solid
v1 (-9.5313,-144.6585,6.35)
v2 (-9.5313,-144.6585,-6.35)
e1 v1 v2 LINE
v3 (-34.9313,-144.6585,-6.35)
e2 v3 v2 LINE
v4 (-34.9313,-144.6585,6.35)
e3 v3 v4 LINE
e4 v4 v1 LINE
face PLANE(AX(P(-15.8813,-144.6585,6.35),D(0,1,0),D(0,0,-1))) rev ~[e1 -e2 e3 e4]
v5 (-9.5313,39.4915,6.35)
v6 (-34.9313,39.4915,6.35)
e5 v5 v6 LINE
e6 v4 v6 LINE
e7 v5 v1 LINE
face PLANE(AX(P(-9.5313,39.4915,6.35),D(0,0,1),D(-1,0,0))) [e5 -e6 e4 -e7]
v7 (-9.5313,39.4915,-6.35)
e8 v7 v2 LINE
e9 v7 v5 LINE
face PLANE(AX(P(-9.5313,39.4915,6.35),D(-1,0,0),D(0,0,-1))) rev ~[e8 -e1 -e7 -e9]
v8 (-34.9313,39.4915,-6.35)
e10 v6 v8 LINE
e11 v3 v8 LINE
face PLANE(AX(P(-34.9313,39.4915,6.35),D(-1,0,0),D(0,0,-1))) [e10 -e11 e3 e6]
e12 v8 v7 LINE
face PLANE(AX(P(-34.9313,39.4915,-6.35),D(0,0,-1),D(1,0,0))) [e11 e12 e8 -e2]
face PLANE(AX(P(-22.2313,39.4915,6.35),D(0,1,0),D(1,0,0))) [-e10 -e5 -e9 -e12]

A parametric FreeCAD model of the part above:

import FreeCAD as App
import Part
import Sketcher
from FreeCAD import Vector
Q = App.Units.Quantity


def add_polygon(sketch, points):
    """Adds a closed chain of lines whose ends are joined by coincident constraints."""
    first, n = sketch.GeometryCount, len(points)
    for a, b in zip(points, points[1:] + points[:1]):
        sketch.addGeometry(Part.LineSegment(App.Vector(*a, 0), App.Vector(*b, 0)), False)
    for i in range(n):
        sketch.addConstraint(Sketcher.Constraint("Coincident", first + i, 2, first + (i + 1) % n, 1))

doc = App.newDocument("Part")
body = doc.addObject("PartDesign::Body", "Body")

# Sketch on XY plane
sketch1 = body.newObject("Sketcher::SketchObject", "Sketch")
sketch1.AttachmentSupport = (doc.getObject("XY_Plane"), [""])
sketch1.MapMode = "FlatFace"
add_polygon(sketch1, [(-28.6, 39.5), (-28.6, 26.8), (-41.3, 26.8), (-41.3, 14.1), (-28.6, 14.1), (-28.6, -132), (-41.3, -132), (-41.3, -144.7), (-28.6, -144.7), (-28.6, -154.2), (116.2, -154.2), (116.2, -144.7), (128.9, -144.7), (128.9, -132), (116.2, -132), (116.2, 14.1), (128.9, 14.1), (128.9, 26.8), (116.2, 26.8), (116.2, 39.5)])  # lines 0-19
sketch1.addGeometry(Part.Circle(Vector(-34.9, -138.3, 0), Vector(0, 0, 1), 2), False)  # 20
sketch1.addGeometry(Part.Circle(Vector(122.5, -138.3, 0), Vector(0, 0, 1), 2), False)  # 21
add_polygon(sketch1, [(-22.2, -151), (-22.2, 26.8), (-22.2, 33.1), (15.9, 33.1), (15.9, 26.8), (22.2, 26.8), (22.2, 33.1), (65.4, 33.1), (65.4, 26.8), (71.7, 26.8), (71.7, 33.1), (109.8, 33.1), (109.8, -151), (71.7, -151), (71.7, -144.7), (65.4, -144.7), (65.4, -151), (22.2, -151), (22.2, -144.7), (15.9, -144.7), (15.9, -151)])  # lines 22-42
sketch1.addGeometry(Part.Circle(Vector(-34.9, 20.4, 0), Vector(0, 0, 1), 2), False)  # 43
sketch1.addGeometry(Part.Circle(Vector(122.5, 20.4, 0), Vector(0, 0, 1), 2), False)  # 44
sketch1.addConstraint([
    Sketcher.Constraint("Vertical", 0),
    Sketcher.Constraint("Horizontal", 1),
    Sketcher.Constraint("Vertical", 2),
    Sketcher.Constraint("Horizontal", 3),
    Sketcher.Constraint("Vertical", 4),
    Sketcher.Constraint("Horizontal", 5),
    Sketcher.Constraint("Vertical", 6),
    Sketcher.Constraint("Horizontal", 7),
    Sketcher.Constraint("Vertical", 8),
    Sketcher.Constraint("Horizontal", 9),
    Sketcher.Constraint("Vertical", 10),
    Sketcher.Constraint("Horizontal", 11),
    Sketcher.Constraint("Vertical", 12),
    Sketcher.Constraint("Horizontal", 13),
    Sketcher.Constraint("Vertical", 14),
    Sketcher.Constraint("Horizontal", 15),
    Sketcher.Constraint("Vertical", 16),
    Sketcher.Constraint("Horizontal", 17),
    Sketcher.Constraint("Vertical", 18),
    Sketcher.Constraint("Horizontal", 19),
    Sketcher.Constraint("Vertical", 22),
    Sketcher.Constraint("Vertical", 23),
    Sketcher.Constraint("Horizontal", 24),
    Sketcher.Constraint("Vertical", 25),
    Sketcher.Constraint("Horizontal", 26),
    Sketcher.Constraint("Vertical", 27),
    Sketcher.Constraint("Horizontal", 28),
    Sketcher.Constraint("Vertical", 29),
    Sketcher.Constraint("Horizontal", 30),
    Sketcher.Constraint("Vertical", 31),
    Sketcher.Constraint("Horizontal", 32),
    Sketcher.Constraint("Vertical", 33),
    Sketcher.Constraint("Horizontal", 34),
    Sketcher.Constraint("Vertical", 35),
    Sketcher.Constraint("Horizontal", 36),
    Sketcher.Constraint("Vertical", 37),
    Sketcher.Constraint("Horizontal", 38),
    Sketcher.Constraint("Vertical", 39),
    Sketcher.Constraint("Horizontal", 40),
    Sketcher.Constraint("Vertical", 41),
    Sketcher.Constraint("Horizontal", 42),
    Sketcher.Constraint("Equal", 20, 21),
    Sketcher.Constraint("Equal", 21, 43),
    Sketcher.Constraint("Equal", 43, 44),
    Sketcher.Constraint("Horizontal", 20, 3, 21, 3),
    Sketcher.Constraint("Horizontal", 43, 3, 44, 3),
    Sketcher.Constraint("Horizontal", 7, 2, 10, 2),
    Sketcher.Constraint("Horizontal", 5, 2, 12, 2),
    Sketcher.Constraint("Horizontal", 3, 2, 14, 2),
    Sketcher.Constraint("Horizontal", 1, 2, 16, 2),
    Sketcher.Constraint("Horizontal", 17, 2, 22, 2),
    Sketcher.Constraint("Horizontal", 22, 2, 25, 2),
    Sketcher.Constraint("Horizontal", 24, 2, 27, 2),
    Sketcher.Constraint("Horizontal", 26, 2, 29, 2),
    Sketcher.Constraint("Horizontal", 28, 2, 31, 2),
    Sketcher.Constraint("Horizontal", 11, 2, 35, 2),
    Sketcher.Constraint("Horizontal", 34, 2, 37, 2),
    Sketcher.Constraint("Horizontal", 36, 2, 39, 2),
    Sketcher.Constraint("Horizontal", 38, 2, 41, 2),
    Sketcher.Constraint("Vertical", 20, 3, 43, 3),
    Sketcher.Constraint("Vertical", 21, 3, 44, 3),
    Sketcher.Constraint("Vertical", 0, 2, 3, 2),
    Sketcher.Constraint("Vertical", 2, 2, 5, 2),
    Sketcher.Constraint("Vertical", 4, 2, 7, 2),
    Sketcher.Constraint("Vertical", 10, 2, 13, 2),
    Sketcher.Constraint("Vertical", 12, 2, 15, 2),
    Sketcher.Constraint("Vertical", 14, 2, 17, 2),
    Sketcher.Constraint("Vertical", 31, 2, 34, 2),
    Sketcher.Constraint("Vertical", 29, 2, 36, 2),
    Sketcher.Constraint("Vertical", 27, 2, 38, 2),
    Sketcher.Constraint("Vertical", 25, 2, 40, 2),
    Sketcher.Constraint("Equal", 7, 11),
    Sketcher.Constraint("Equal", 26, 30),
    Sketcher.Constraint("Equal", 24, 32),
    Sketcher.Constraint("Equal", 17, 0),
    Sketcher.Constraint("Equal", 0, 2),
    Sketcher.Constraint("Equal", 2, 6),
    Sketcher.Constraint("Equal", 40, 23),
    Sketcher.Constraint("Equal", 31, 35),
    Sketcher.Constraint("Diameter", 20, Q("0.156 in")),
    Sketcher.Constraint("DistanceX", 1, 2, 1, 1, Q("0.5 in")),
    Sketcher.Constraint("DistanceX", 9, 1, 9, 2, Q("5.7 in")),
    Sketcher.Constraint("DistanceX", 24, 1, 24, 2, Q("1.5 in")),
    Sketcher.Constraint("DistanceX", 26, 1, 26, 2, Q("0.25 in")),
    Sketcher.Constraint("DistanceY", 4, 2, 4, 1, Q("5.75 in")),
    Sketcher.Constraint("DistanceX", 43, 3, 22, 2, Q("0.5 in")),
    Sketcher.Constraint("DistanceY", 43, 3, 23, 2, Q("0.5 in")),
    Sketcher.Constraint("DistanceX", 32, 2, 44, 3, Q("0.5 in")),
    Sketcher.Constraint("DistanceY", 33, 2, 21, 3, Q("0.5 in")),
    Sketcher.Constraint("DistanceY", 8, 2, 8, 1, Q("0.375 in")),
    Sketcher.Constraint("DistanceX", 43, 3, 0, 2, Q("0.25 in")),
    Sketcher.Constraint("DistanceX", 9, 2, 21, 3, Q("0.25 in")),
    Sketcher.Constraint("DistanceX", 20, 3, -1, 1, Q("34.9313 mm")),
    Sketcher.Constraint("DistanceY", 20, 3, -1, 1, Q("138.3085 mm")),
])
pad1 = body.newObject("PartDesign::Pad", "Pad")
pad1.Profile = sketch1
pad1.Length = Q("0.25 in")

# Sketch on XZ plane
sketch2 = body.newObject("Sketcher::SketchObject", "Sketch001")
sketch2.AttachmentSupport = (doc.getObject("XZ_Plane"), [""])
sketch2.MapMode = "FlatFace"
sketch2.AttachmentOffset = App.Placement(Vector(0, 0, 154.1835), App.Rotation())
add_polygon(sketch2, [(116, 0), (116, 6), (-29, 6), (-29, 0)])  # lines 0-3
sketch2.addConstraint([
    Sketcher.Constraint("Vertical", 0),
    Sketcher.Constraint("Horizontal", 1),
    Sketcher.Constraint("Vertical", 2),
    Sketcher.Constraint("Horizontal", 3),
    Sketcher.Constraint("PointOnObject", 2, 2, -1),
    Sketcher.Constraint("DistanceX", 1, 2, 1, 1, Q("5.7 in")),
    Sketcher.Constraint("DistanceY", 0, 1, 0, 2, Q("0.25 in")),
    Sketcher.Constraint("DistanceX", -1, 1, 0, 2, Q("116.1987 mm")),
])
pad2 = body.newObject("PartDesign::Pad", "Pad001")
pad2.Profile = sketch2
pad2.Length = Q("0.125 in")

# Sketch on XY plane
sketch3 = body.newObject("Sketcher::SketchObject", "Sketch002")
sketch3.AttachmentSupport = (doc.getObject("XY_Plane"), [""])
sketch3.MapMode = "FlatFace"
sketch3.AttachmentOffset = App.Placement(Vector(0, 0, 0.25 * 25.4), App.Rotation())
add_polygon(sketch3, [(-29, -132), (-29, 14), (-41, 14), (-41, -132)])  # lines 0-3
add_polygon(sketch3, [(116, 14), (116, -132), (129, -132), (129, 14)])  # lines 4-7
sketch3.addConstraint([
    Sketcher.Constraint("Vertical", 0),
    Sketcher.Constraint("Horizontal", 1),
    Sketcher.Constraint("Vertical", 2),
    Sketcher.Constraint("Horizontal", 3),
    Sketcher.Constraint("Vertical", 4),
    Sketcher.Constraint("Horizontal", 5),
    Sketcher.Constraint("Vertical", 6),
    Sketcher.Constraint("Horizontal", 7),
    Sketcher.Constraint("Horizontal", 3, 2, 4, 2),
    Sketcher.Constraint("Horizontal", 1, 2, 6, 2),
    Sketcher.Constraint("Equal", 3, 5),
    Sketcher.Constraint("DistanceX", 1, 2, 1, 1, Q("0.5 in")),
    Sketcher.Constraint("DistanceY", 0, 1, 0, 2, Q("5.75 in")),
    Sketcher.Constraint("DistanceX", 3, 2, 4, 2, Q("5.7 in")),
    Sketcher.Constraint("DistanceX", 0, 2, -1, 1, Q("28.5813 mm")),
    Sketcher.Constraint("DistanceY", -1, 1, 0, 2, Q("14.0915 mm")),
])
pad3 = body.newObject("PartDesign::Pad", "Pad002")
pad3.Profile = sketch3
pad3.Length = Q("0.25 in")
pad3.Reversed = True

# Sketch on XY plane
sketch4 = body.newObject("Sketcher::SketchObject", "Sketch003")
sketch4.AttachmentSupport = (doc.getObject("XY_Plane"), [""])
sketch4.MapMode = "FlatFace"
sketch4.AttachmentOffset = App.Placement(Vector(0, 0, 0.25 * 25.4), App.Rotation())
add_polygon(sketch4, [(-41, -157), (-29, -157), (-29, -151), (-41, -151)])  # lines 0-3
add_polygon(sketch4, [(116, -151), (116, -157), (129, -157), (129, -151)])  # lines 4-7
add_polygon(sketch4, [(110, 20), (110, 27), (-22, 27), (-22, 20)])  # lines 8-11
add_polygon(sketch4, [(110, -145), (110, -138), (-22, -138), (-22, -145)])  # lines 12-15
sketch4.addConstraint([
    Sketcher.Constraint("Horizontal", 0),
    Sketcher.Constraint("Vertical", 1),
    Sketcher.Constraint("Horizontal", 2),
    Sketcher.Constraint("Vertical", 3),
    Sketcher.Constraint("Vertical", 4),
    Sketcher.Constraint("Horizontal", 5),
    Sketcher.Constraint("Vertical", 6),
    Sketcher.Constraint("Horizontal", 7),
    Sketcher.Constraint("Vertical", 8),
    Sketcher.Constraint("Horizontal", 9),
    Sketcher.Constraint("Vertical", 10),
    Sketcher.Constraint("Horizontal", 11),
    Sketcher.Constraint("Vertical", 12),
    Sketcher.Constraint("Horizontal", 13),
    Sketcher.Constraint("Vertical", 14),
    Sketcher.Constraint("Horizontal", 15),
    Sketcher.Constraint("Horizontal", 3, 2, 4, 2),
    Sketcher.Constraint("Horizontal", 2, 2, 6, 2),
    Sketcher.Constraint("Vertical", 11, 2, 12, 2),
    Sketcher.Constraint("Vertical", 10, 2, 13, 2),
    Sketcher.Constraint("Equal", 2, 5),
    Sketcher.Constraint("Equal", 6, 8),
    Sketcher.Constraint("Equal", 10, 12),
    Sketcher.Constraint("DistanceX", 0, 1, 0, 2, Q("0.5 in")),
    Sketcher.Constraint("DistanceX", 9, 2, 9, 1, Q("5.2 in")),
    Sketcher.Constraint("DistanceY", 7, 2, 8, 2, Q("7 in")),
    Sketcher.Constraint("DistanceY", 1, 1, 1, 2, Q("0.25 in")),
    Sketcher.Constraint("DistanceX", 0, 2, 4, 2, Q("5.7 in")),
    Sketcher.Constraint("DistanceY", 7, 2, 12, 2, Q("0.5 in")),
    Sketcher.Constraint("DistanceX", 8, 2, 7, 2, Q("0.25 in")),
    Sketcher.Constraint("DistanceX", 0, 2, -1, 1, Q("28.5813 mm")),
    Sketcher.Constraint("DistanceY", 0, 2, -1, 1, Q("157.3585 mm")),
])
pad4 = body.newObject("PartDesign::Pad", "Pad003")
pad4.Profile = sketch4
pad4.Length = Q("0.25 in")
pad4.Reversed = True

# Sketch on XY plane
sketch5 = body.newObject("Sketcher::SketchObject", "Sketch004")
sketch5.AttachmentSupport = (doc.getObject("XY_Plane"), [""])
sketch5.MapMode = "FlatFace"
sketch5.AttachmentOffset = App.Placement(Vector(0, 0, 0.25 * 25.4), App.Rotation())
add_polygon(sketch5, [(-41, 33), (-29, 33), (-29, 39), (-41, 39)])  # lines 0-3
add_polygon(sketch5, [(129, 39), (116, 39), (116, 33), (129, 33)])  # lines 4-7
sketch5.addConstraint([
    Sketcher.Constraint("Horizontal", 0),
    Sketcher.Constraint("Vertical", 1),
    Sketcher.Constraint("Horizontal", 2),
    Sketcher.Constraint("Vertical", 3),
    Sketcher.Constraint("Horizontal", 4),
    Sketcher.Constraint("Vertical", 5),
    Sketcher.Constraint("Horizontal", 6),
    Sketcher.Constraint("Vertical", 7),
    Sketcher.Constraint("Horizontal", 2, 2, 4, 2),
    Sketcher.Constraint("Horizontal", 3, 2, 5, 2),
    Sketcher.Constraint("Equal", 2, 4),
    Sketcher.Constraint("DistanceX", 0, 1, 0, 2, Q("0.5 in")),
    Sketcher.Constraint("DistanceY", 1, 1, 1, 2, Q("0.25 in")),
    Sketcher.Constraint("DistanceX", 1, 2, 4, 2, Q("5.7 in")),
    Sketcher.Constraint("DistanceX", 0, 2, -1, 1, Q("28.5813 mm")),
    Sketcher.Constraint("DistanceY", -1, 1, 0, 2, Q("33.1415 mm")),
])
pad5 = body.newObject("PartDesign::Pad", "Pad004")
pad5.Profile = sketch5
pad5.Length = Q("0.25 in")
pad5.Reversed = True

# Sketch on XY plane
sketch6 = body.newObject("Sketcher::SketchObject", "Sketch005")
sketch6.AttachmentSupport = (doc.getObject("XY_Plane"), [""])
sketch6.MapMode = "FlatFace"
sketch6.AttachmentOffset = App.Placement(Vector(0, 0, 0.25 * 25.4), App.Rotation())
add_polygon(sketch6, [(59, -151), (78, -151), (78, -145), (59, -145)])  # lines 0-3
add_polygon(sketch6, [(10, -151), (29, -151), (29, -145), (10, -145)])  # lines 4-7
add_polygon(sketch6, [(22, 27), (29, 27), (29, 33), (22, 33)])  # lines 8-11
add_polygon(sketch6, [(59, 27), (65, 27), (65, 33), (59, 33)])  # lines 12-15
add_polygon(sketch6, [(72, 27), (78, 27), (78, 33), (72, 33)])  # lines 16-19
add_polygon(sketch6, [(-35, 33), (-35, 27), (-29, 27), (-29, 33)])  # lines 20-23
add_polygon(sketch6, [(-35, -151), (-29, -151), (-29, -145), (-35, -145)])  # lines 24-27
add_polygon(sketch6, [(116, -151), (123, -151), (123, -145), (116, -145)])  # lines 28-31
add_polygon(sketch6, [(116, 33), (116, 27), (123, 27), (123, 33)])  # lines 32-35
add_polygon(sketch6, [(16, 27), (16, 33), (10, 33), (10, 27)])  # lines 36-39
sketch6.addConstraint([
    Sketcher.Constraint("Horizontal", 0),
    Sketcher.Constraint("Vertical", 1),
    Sketcher.Constraint("Horizontal", 2),
    Sketcher.Constraint("Vertical", 3),
    Sketcher.Constraint("Horizontal", 4),
    Sketcher.Constraint("Vertical", 5),
    Sketcher.Constraint("Horizontal", 6),
    Sketcher.Constraint("Vertical", 7),
    Sketcher.Constraint("Horizontal", 8),
    Sketcher.Constraint("Vertical", 9),
    Sketcher.Constraint("Horizontal", 10),
    Sketcher.Constraint("Vertical", 11),
    Sketcher.Constraint("Horizontal", 12),
    Sketcher.Constraint("Vertical", 13),
    Sketcher.Constraint("Horizontal", 14),
    Sketcher.Constraint("Vertical", 15),
    Sketcher.Constraint("Horizontal", 16),
    Sketcher.Constraint("Vertical", 17),
    Sketcher.Constraint("Horizontal", 18),
    Sketcher.Constraint("Vertical", 19),
    Sketcher.Constraint("Vertical", 20),
    Sketcher.Constraint("Horizontal", 21),
    Sketcher.Constraint("Vertical", 22),
    Sketcher.Constraint("Horizontal", 23),
    Sketcher.Constraint("Horizontal", 24),
    Sketcher.Constraint("Vertical", 25),
    Sketcher.Constraint("Horizontal", 26),
    Sketcher.Constraint("Vertical", 27),
    Sketcher.Constraint("Horizontal", 28),
    Sketcher.Constraint("Vertical", 29),
    Sketcher.Constraint("Horizontal", 30),
    Sketcher.Constraint("Vertical", 31),
    Sketcher.Constraint("Vertical", 32),
    Sketcher.Constraint("Horizontal", 33),
    Sketcher.Constraint("Vertical", 34),
    Sketcher.Constraint("Horizontal", 35),
    Sketcher.Constraint("Vertical", 36),
    Sketcher.Constraint("Horizontal", 37),
    Sketcher.Constraint("Vertical", 38),
    Sketcher.Constraint("Horizontal", 39),
    Sketcher.Constraint("Horizontal", 3, 2, 4, 2),
    Sketcher.Constraint("Horizontal", 2, 2, 5, 2),
    Sketcher.Constraint("Horizontal", 11, 2, 12, 2),
    Sketcher.Constraint("Horizontal", 10, 2, 13, 2),
    Sketcher.Constraint("Horizontal", 15, 2, 16, 2),
    Sketcher.Constraint("Horizontal", 14, 2, 17, 2),
    Sketcher.Constraint("Horizontal", 19, 2, 20, 2),
    Sketcher.Constraint("Horizontal", 18, 2, 22, 2),
    Sketcher.Constraint("Horizontal", 7, 2, 24, 2),
    Sketcher.Constraint("Horizontal", 6, 2, 25, 2),
    Sketcher.Constraint("Horizontal", 27, 2, 28, 2),
    Sketcher.Constraint("Horizontal", 26, 2, 29, 2),
    Sketcher.Constraint("Horizontal", 21, 2, 32, 2),
    Sketcher.Constraint("Horizontal", 23, 2, 34, 2),
    Sketcher.Constraint("Horizontal", 35, 2, 36, 2),
    Sketcher.Constraint("Horizontal", 33, 2, 38, 2),
    Sketcher.Constraint("Vertical", 5, 2, 8, 2),
    Sketcher.Constraint("Vertical", 3, 2, 14, 2),
    Sketcher.Constraint("Vertical", 1, 2, 16, 2),
    Sketcher.Constraint("Vertical", 22, 2, 24, 2),
    Sketcher.Constraint("Vertical", 23, 2, 26, 2),
    Sketcher.Constraint("Vertical", 31, 2, 32, 2),
    Sketcher.Constraint("Vertical", 29, 2, 33, 2),
    Sketcher.Constraint("Vertical", 7, 2, 37, 2),
    Sketcher.Constraint("Equal", 10, 12),
    Sketcher.Constraint("Equal", 14, 16),
    Sketcher.Constraint("Equal", 18, 21),
    Sketcher.Constraint("Equal", 26, 28),
    Sketcher.Constraint("Equal", 35, 1),
    Sketcher.Constraint("Equal", 7, 9),
    Sketcher.Constraint("DistanceX", 8, 1, 8, 2, Q("0.25 in")),
    Sketcher.Constraint("DistanceX", 13, 2, 18, 2, Q("0.25 in")),
    Sketcher.Constraint("DistanceX", 36, 2, 10, 2, Q("0.25 in")),
    Sketcher.Constraint("DistanceY", 4, 2, 8, 2, Q("7 in")),
    Sketcher.Constraint("DistanceX", 21, 2, 11, 2, Q("2 in")),
    Sketcher.Constraint("DistanceX", 12, 2, 32, 2, Q("2 in")),
    Sketcher.Constraint("DistanceX", 4, 2, 3, 2, Q("1.2 in")),
    Sketcher.Constraint("DistanceX", 4, 1, 4, 2, Q("18.4895 mm")),
    Sketcher.Constraint("DistanceX", -1, 1, 0, 2, Q("78.0987 mm")),
    Sketcher.Constraint("DistanceY", 0, 2, -1, 1, Q("151.0085 mm")),
])
pad6 = body.newObject("PartDesign::Pad", "Pad005")
pad6.Profile = sketch6
pad6.Length = Q("0.25 in")
pad6.Reversed = True

# Sketch on XY plane
sketch7 = body.newObject("Sketcher::SketchObject", "Sketch006")
sketch7.AttachmentSupport = (doc.getObject("XY_Plane"), [""])
sketch7.MapMode = "FlatFace"
add_polygon(sketch7, [(129, 116), (129, 39), (-41, 39), (-41, 65), (91, 65), (91, 116)])  # lines 0-5
sketch7.addConstraint([
    Sketcher.Constraint("Vertical", 0),
    Sketcher.Constraint("Horizontal", 1),
    Sketcher.Constraint("Vertical", 2),
    Sketcher.Constraint("Horizontal", 3),
    Sketcher.Constraint("Vertical", 4),
    Sketcher.Constraint("Horizontal", 5),
    Sketcher.Constraint("DistanceY", 0, 2, 0, 1, Q("3 in")),
    Sketcher.Constraint("DistanceY", 2, 1, 2, 2, Q("1 in")),
    Sketcher.Constraint("DistanceX", 5, 1, 5, 2, Q("1.5 in")),
    Sketcher.Constraint("DistanceX", 1, 2, 1, 1, Q("6.7 in")),
    Sketcher.Constraint("DistanceX", -1, 1, 0, 2, Q("128.8987 mm")),
    Sketcher.Constraint("DistanceY", -1, 1, 0, 2, Q("39.4915 mm")),
])
pad7 = body.newObject("PartDesign::Pad", "Pad006")
pad7.Profile = sketch7
pad7.Length = Q("0.25 in")

# Sketch on XY plane
sketch8 = body.newObject("Sketcher::SketchObject", "Sketch007")
sketch8.AttachmentSupport = (doc.getObject("XY_Plane"), [""])
sketch8.MapMode = "FlatFace"
add_polygon(sketch8, [(-172, 65), (-41, 65), (-41, 39), (-210, 39), (-210, 116), (-172, 116)])  # lines 0-5
sketch8.addConstraint([
    Sketcher.Constraint("Horizontal", 0),
    Sketcher.Constraint("Vertical", 1),
    Sketcher.Constraint("Horizontal", 2),
    Sketcher.Constraint("Vertical", 3),
    Sketcher.Constraint("Horizontal", 4),
    Sketcher.Constraint("Vertical", 5),
    Sketcher.Constraint("DistanceY", 1, 2, 1, 1, Q("1 in")),
    Sketcher.Constraint("DistanceX", 4, 1, 4, 2, Q("1.5 in")),
    Sketcher.Constraint("DistanceX", 2, 2, 2, 1, Q("6.65 in")),
    Sketcher.Constraint("DistanceY", 3, 1, 3, 2, Q("3 in")),
    Sketcher.Constraint("DistanceX", 0, 2, -1, 1, Q("41.2813 mm")),
    Sketcher.Constraint("DistanceY", -1, 1, 0, 2, Q("64.8915 mm")),
])
pad8 = body.newObject("PartDesign::Pad", "Pad007")
pad8.Profile = sketch8
pad8.Length = Q("0.25 in")

# Sketch on XY plane
sketch9 = body.newObject("Sketcher::SketchObject", "Sketch008")
sketch9.AttachmentSupport = (doc.getObject("XY_Plane"), [""])
sketch9.MapMode = "FlatFace"
add_polygon(sketch9, [(129, 27), (-41, 27), (-41, 50), (129, 50)])  # lines 0-3
sketch9.addConstraint([
    Sketcher.Constraint("Horizontal", 0),
    Sketcher.Constraint("Vertical", 1),
    Sketcher.Constraint("Horizontal", 2),
    Sketcher.Constraint("Vertical", 3),
    Sketcher.Constraint("DistanceX", 0, 2, 0, 1, Q("6.7 in")),
    Sketcher.Constraint("DistanceY", 1, 1, 1, 2, Q("22.9725 mm")),
    Sketcher.Constraint("DistanceX", 0, 2, -1, 1, Q("41.2813 mm")),
    Sketcher.Constraint("DistanceY", -1, 1, 0, 2, Q("26.7915 mm")),
])
pad9 = body.newObject("PartDesign::Pad", "Pad008")
pad9.Profile = sketch9
pad9.Length = Q("0.25 in")

# Sketch on XY plane
sketch10 = body.newObject("Sketcher::SketchObject", "Sketch009")
sketch10.AttachmentSupport = (doc.getObject("XY_Plane"), [""])
sketch10.MapMode = "FlatFace"
add_polygon(sketch10, [(-210, 39), (-41, 39), (-41, 20), (-210, 20)])  # lines 0-3
sketch10.addConstraint([
    Sketcher.Constraint("Horizontal", 0),
    Sketcher.Constraint("Vertical", 1),
    Sketcher.Constraint("Horizontal", 2),
    Sketcher.Constraint("Vertical", 3),
    Sketcher.Constraint("DistanceX", 0, 1, 0, 2, Q("6.65 in")),
    Sketcher.Constraint("DistanceY", 1, 2, 1, 1, Q("0.75 in")),
    Sketcher.Constraint("DistanceX", 0, 2, -1, 1, Q("41.2813 mm")),
    Sketcher.Constraint("DistanceY", -1, 1, 0, 2, Q("39.4915 mm")),
])
pad10 = body.newObject("PartDesign::Pad", "Pad009")
pad10.Profile = sketch10
pad10.Length = Q("0.25 in")

# Sketch on XY plane
sketch11 = body.newObject("Sketcher::SketchObject", "Sketch010")
sketch11.AttachmentSupport = (doc.getObject("XY_Plane"), [""])
sketch11.MapMode = "FlatFace"
add_polygon(sketch11, [(129, 141), (129, 116), (91, 116), (91, 141)])  # lines 0-3
add_polygon(sketch11, [(-172, 141), (-172, 116), (-210, 116), (-210, 141)])  # lines 4-7
sketch11.addConstraint([
    Sketcher.Constraint("Vertical", 0),
    Sketcher.Constraint("Horizontal", 1),
    Sketcher.Constraint("Vertical", 2),
    Sketcher.Constraint("Horizontal", 3),
    Sketcher.Constraint("Vertical", 4),
    Sketcher.Constraint("Horizontal", 5),
    Sketcher.Constraint("Vertical", 6),
    Sketcher.Constraint("Horizontal", 7),
    Sketcher.Constraint("Horizontal", 1, 2, 4, 2),
    Sketcher.Constraint("Horizontal", 3, 2, 6, 2),
    Sketcher.Constraint("Equal", 3, 5),
    Sketcher.Constraint("DistanceY", 0, 2, 0, 1, Q("1 in")),
    Sketcher.Constraint("DistanceX", 1, 2, 1, 1, Q("1.5 in")),
    Sketcher.Constraint("DistanceX", 4, 2, 1, 2, Q("10.35 in")),
    Sketcher.Constraint("DistanceX", -1, 1, 0, 2, Q("128.8987 mm")),
    Sketcher.Constraint("DistanceY", -1, 1, 0, 2, Q("115.6915 mm")),
])
pad11 = body.newObject("PartDesign::Pad", "Pad010")
pad11.Profile = sketch11
pad11.Length = Q("0.25 in")

# Sketch on XY plane
sketch12 = body.newObject("Sketcher::SketchObject", "Sketch011")
sketch12.AttachmentSupport = (doc.getObject("XY_Plane"), [""])
sketch12.MapMode = "FlatFace"
add_polygon(sketch12, [(82, 33), (57, 33), (57, 39), (82, 39)])  # lines 0-3
add_polygon(sketch12, [(6, 33), (-20, 33), (-20, 39), (6, 39)])  # lines 4-7
add_polygon(sketch12, [(-147, 33), (-172, 33), (-172, 39), (-147, 39)])  # lines 8-11
add_polygon(sketch12, [(-109, 27), (-134, 27), (-134, 33), (-109, 33)])  # lines 12-15
add_polygon(sketch12, [(-96, 33), (-96, 39), (-70, 39), (-70, 33)])  # lines 16-19
add_polygon(sketch12, [(-58, 27), (-58, 33), (-32, 33), (-32, 27)])  # lines 20-23
add_polygon(sketch12, [(18, 27), (18, 33), (44, 33), (44, 27)])  # lines 24-27
add_polygon(sketch12, [(95, 27), (95, 33), (120, 33), (120, 27)])  # lines 28-31
sketch12.addConstraint([
    Sketcher.Constraint("Horizontal", 0),
    Sketcher.Constraint("Vertical", 1),
    Sketcher.Constraint("Horizontal", 2),
    Sketcher.Constraint("Vertical", 3),
    Sketcher.Constraint("Horizontal", 4),
    Sketcher.Constraint("Vertical", 5),
    Sketcher.Constraint("Horizontal", 6),
    Sketcher.Constraint("Vertical", 7),
    Sketcher.Constraint("Horizontal", 8),
    Sketcher.Constraint("Vertical", 9),
    Sketcher.Constraint("Horizontal", 10),
    Sketcher.Constraint("Vertical", 11),
    Sketcher.Constraint("Horizontal", 12),
    Sketcher.Constraint("Vertical", 13),
    Sketcher.Constraint("Horizontal", 14),
    Sketcher.Constraint("Vertical", 15),
    Sketcher.Constraint("Vertical", 16),
    Sketcher.Constraint("Horizontal", 17),
    Sketcher.Constraint("Vertical", 18),
    Sketcher.Constraint("Horizontal", 19),
    Sketcher.Constraint("Vertical", 20),
    Sketcher.Constraint("Horizontal", 21),
    Sketcher.Constraint("Vertical", 22),
    Sketcher.Constraint("Horizontal", 23),
    Sketcher.Constraint("Vertical", 24),
    Sketcher.Constraint("Horizontal", 25),
    Sketcher.Constraint("Vertical", 26),
    Sketcher.Constraint("Horizontal", 27),
    Sketcher.Constraint("Vertical", 28),
    Sketcher.Constraint("Horizontal", 29),
    Sketcher.Constraint("Vertical", 30),
    Sketcher.Constraint("Horizontal", 31),
    Sketcher.Constraint("Horizontal", 3, 2, 4, 2),
    Sketcher.Constraint("Horizontal", 7, 2, 8, 2),
    Sketcher.Constraint("Horizontal", 6, 2, 9, 2),
    Sketcher.Constraint("Horizontal", 11, 2, 13, 2),
    Sketcher.Constraint("Horizontal", 10, 2, 16, 2),
    Sketcher.Constraint("Horizontal", 14, 2, 18, 2),
    Sketcher.Constraint("Horizontal", 19, 2, 20, 2),
    Sketcher.Constraint("Horizontal", 15, 2, 22, 2),
    Sketcher.Constraint("Horizontal", 21, 2, 24, 2),
    Sketcher.Constraint("Horizontal", 23, 2, 26, 2),
    Sketcher.Constraint("Horizontal", 25, 2, 28, 2),
    Sketcher.Constraint("Horizontal", 27, 2, 30, 2),
    Sketcher.Constraint("Equal", 2, 4),
    Sketcher.Constraint("Equal", 6, 8),
    Sketcher.Constraint("Equal", 10, 12),
    Sketcher.Constraint("Equal", 14, 17),
    Sketcher.Constraint("Equal", 19, 21),
    Sketcher.Constraint("Equal", 23, 25),
    Sketcher.Constraint("Equal", 27, 29),
    Sketcher.Constraint("Equal", 11, 13),
    Sketcher.Constraint("DistanceX", 0, 2, 0, 1, Q("1 in")),
    Sketcher.Constraint("DistanceX", 6, 2, 1, 2, Q("2 in")),
    Sketcher.Constraint("DistanceX", 10, 2, 16, 2, Q("2 in")),
    Sketcher.Constraint("DistanceX", 17, 2, 5, 2, Q("2 in")),
    Sketcher.Constraint("DistanceX", 25, 2, 28, 2, Q("2 in")),
    Sketcher.Constraint("DistanceY", 5, 1, 5, 2, Q("0.25 in")),
    Sketcher.Constraint("DistanceX", 11, 2, 12, 2, Q("0.5 in")),
    Sketcher.Constraint("DistanceX", 18, 2, 20, 2, Q("0.5 in")),
    Sketcher.Constraint("DistanceX", 7, 2, 24, 2, Q("0.5 in")),
    Sketcher.Constraint("DistanceY", 1, 1, 1, 2, Q("0.2232 in")),
    Sketcher.Constraint("DistanceX", -1, 1, 0, 2, Q("56.5087 mm")),
    Sketcher.Constraint("DistanceY", -1, 1, 0, 2, Q("33.1415 mm")),
])
pocket1 = body.newObject("PartDesign::Pocket", "Pocket")
pocket1.Profile = sketch12
pocket1.Length = Q("0.25 in")
pocket1.Reversed = True

# Sketch on XY plane
sketch13 = body.newObject("Sketcher::SketchObject", "Sketch012")
sketch13.AttachmentSupport = (doc.getObject("XY_Plane"), [""])
sketch13.MapMode = "FlatFace"
add_polygon(sketch13, [(-204, 20), (-210, 20), (-210, 65), (-204, 65)])  # lines 0-3
add_polygon(sketch13, [(-204, 90), (-210, 90), (-210, 116), (-204, 116)])  # lines 4-7
sketch13.addConstraint([
    Sketcher.Constraint("Horizontal", 0),
    Sketcher.Constraint("Vertical", 1),
    Sketcher.Constraint("Horizontal", 2),
    Sketcher.Constraint("Vertical", 3),
    Sketcher.Constraint("Horizontal", 4),
    Sketcher.Constraint("Vertical", 5),
    Sketcher.Constraint("Horizontal", 6),
    Sketcher.Constraint("Vertical", 7),
    Sketcher.Constraint("Vertical", 1, 2, 4, 2),
    Sketcher.Constraint("Vertical", 3, 2, 6, 2),
    Sketcher.Constraint("DistanceY", 5, 1, 5, 2, Q("1 in")),
    Sketcher.Constraint("DistanceY", 1, 2, 4, 2, Q("1 in")),
    Sketcher.Constraint("DistanceX", 0, 2, 0, 1, Q("0.25 in")),
    Sketcher.Constraint("DistanceY", 1, 1, 1, 2, Q("1.75 in")),
    Sketcher.Constraint("DistanceX", 0, 2, -1, 1, Q("210.1913 mm")),
    Sketcher.Constraint("DistanceY", -1, 1, 0, 2, Q("20.4415 mm")),
])
pocket2 = body.newObject("PartDesign::Pocket", "Pocket001")
pocket2.Profile = sketch13
pocket2.Length = Q("0.25 in")
pocket2.Reversed = True

# Sketch on XY plane
sketch14 = body.newObject("Sketcher::SketchObject", "Sketch013")
sketch14.AttachmentSupport = (doc.getObject("XY_Plane"), [""])
sketch14.MapMode = "FlatFace"
add_polygon(sketch14, [(129, 116), (91, 116), (91, 141), (129, 141)])  # lines 0-3
add_polygon(sketch14, [(123, 90), (129, 90), (129, 65), (123, 65)])  # lines 4-7
add_polygon(sketch14, [(-210, 141), (-172, 141), (-172, 116), (-210, 116)])  # lines 8-11
sketch14.addConstraint([
    Sketcher.Constraint("Horizontal", 0),
    Sketcher.Constraint("Vertical", 1),
    Sketcher.Constraint("Horizontal", 2),
    Sketcher.Constraint("Vertical", 3),
    Sketcher.Constraint("Horizontal", 4),
    Sketcher.Constraint("Vertical", 5),
    Sketcher.Constraint("Horizontal", 6),
    Sketcher.Constraint("Vertical", 7),
    Sketcher.Constraint("Horizontal", 8),
    Sketcher.Constraint("Vertical", 9),
    Sketcher.Constraint("Horizontal", 10),
    Sketcher.Constraint("Vertical", 11),
    Sketcher.Constraint("Horizontal", 2, 2, 8, 2),
    Sketcher.Constraint("Horizontal", 3, 2, 9, 2),
    Sketcher.Constraint("Vertical", 3, 2, 4, 2),
    Sketcher.Constraint("Equal", 2, 8),
    Sketcher.Constraint("Equal", 3, 5),
    Sketcher.Constraint("DistanceY", 1, 1, 1, 2, Q("1 in")),
    Sketcher.Constraint("DistanceX", 0, 2, 0, 1, Q("1.5 in")),
    Sketcher.Constraint("DistanceY", 4, 2, 3, 2, Q("1 in")),
    Sketcher.Constraint("DistanceX", 4, 1, 4, 2, Q("0.25 in")),
    Sketcher.Constraint("DistanceX", 8, 2, 7, 2, Q("11.6 in")),
    Sketcher.Constraint("DistanceX", -1, 1, 0, 2, Q("90.7987 mm")),
    Sketcher.Constraint("DistanceY", -1, 1, 0, 2, Q("115.6915 mm")),
])
pocket3 = body.newObject("PartDesign::Pocket", "Pocket002")
pocket3.Profile = sketch14
pocket3.Length = Q("0.25 in")
pocket3.Reversed = True

# Sketch on XY plane
sketch15 = body.newObject("Sketcher::SketchObject", "Sketch014")
sketch15.AttachmentSupport = (doc.getObject("XY_Plane"), [""])
sketch15.MapMode = "FlatFace"
add_polygon(sketch15, [(-197, 27), (-204, 27), (-204, 39), (-197, 39)])  # lines 0-3
sketch15.addConstraint([
    Sketcher.Constraint("Horizontal", 0),
    Sketcher.Constraint("Vertical", 1),
    Sketcher.Constraint("Horizontal", 2),
    Sketcher.Constraint("Vertical", 3),
    Sketcher.Constraint("DistanceX", 0, 2, 0, 1, Q("0.25 in")),
    Sketcher.Constraint("DistanceY", 1, 1, 1, 2, Q("0.5 in")),
    Sketcher.Constraint("DistanceX", 0, 2, -1, 1, Q("203.8413 mm")),
    Sketcher.Constraint("DistanceY", -1, 1, 0, 2, Q("26.7915 mm")),
])
pocket4 = body.newObject("PartDesign::Pocket", "Pocket003")
pocket4.Profile = sketch15
pocket4.Length = Q("0.25 in")
pocket4.Reversed = True

# Sketch on XY plane
sketch16 = body.newObject("Sketcher::SketchObject", "Sketch015")
sketch16.AttachmentSupport = (doc.getObject("XY_Plane"), [""])
sketch16.MapMode = "FlatFace"
sketch16.addGeometry([
    Part.Circle(Vector(109.8, 77.6, 0), Vector(0, 0, 1), 2),
    Part.Circle(Vector(-191.1, 83.9, 0), Vector(0, 0, 1), 2),
], False)
sketch16.addConstraint([
    Sketcher.Constraint("Equal", 0, 1),
    Sketcher.Constraint("Diameter", 0, Q("0.156 in")),
    Sketcher.Constraint("DistanceX", 1, 3, 0, 3, Q("11.85 in")),
    Sketcher.Constraint("DistanceY", 0, 3, 1, 3, Q("0.25 in")),
    Sketcher.Constraint("DistanceX", -1, 1, 0, 3, Q("109.8487 mm")),
    Sketcher.Constraint("DistanceY", -1, 1, 0, 3, Q("77.5915 mm")),
])
pocket5 = body.newObject("PartDesign::Pocket", "Pocket004")
pocket5.Profile = sketch16
pocket5.Length = Q("0.25 in")
pocket5.Reversed = True

# Sketch on XY plane
sketch17 = body.newObject("Sketcher::SketchObject", "Sketch016")
sketch17.AttachmentSupport = (doc.getObject("XY_Plane"), [""])
sketch17.MapMode = "FlatFace"
add_polygon(sketch17, [(123, 65), (123, 90), (129, 90), (129, 65)])  # lines 0-3
sketch17.addConstraint([
    Sketcher.Constraint("Vertical", 0),
    Sketcher.Constraint("Horizontal", 1),
    Sketcher.Constraint("Vertical", 2),
    Sketcher.Constraint("Horizontal", 3),
    Sketcher.Constraint("DistanceY", 0, 1, 0, 2, Q("1 in")),
    Sketcher.Constraint("DistanceX", 1, 1, 1, 2, Q("0.25 in")),
    Sketcher.Constraint("DistanceX", -1, 1, 0, 2, Q("122.5487 mm")),
    Sketcher.Constraint("DistanceY", -1, 1, 0, 2, Q("90.2915 mm")),
])
pad12 = body.newObject("PartDesign::Pad", "Pad011")
pad12.Profile = sketch17
pad12.Length = Q("0.25 in")

# Sketch on XY plane
sketch18 = body.newObject("Sketcher::SketchObject", "Sketch017")
sketch18.AttachmentSupport = (doc.getObject("XY_Plane"), [""])
sketch18.MapMode = "FlatFace"
add_polygon(sketch18, [(129, 65), (129, 39), (123, 39), (123, 65)])  # lines 0-3
add_polygon(sketch18, [(129, 116), (129, 90), (123, 90), (123, 116)])  # lines 4-7
sketch18.addConstraint([
    Sketcher.Constraint("Vertical", 0),
    Sketcher.Constraint("Horizontal", 1),
    Sketcher.Constraint("Vertical", 2),
    Sketcher.Constraint("Horizontal", 3),
    Sketcher.Constraint("Vertical", 4),
    Sketcher.Constraint("Horizontal", 5),
    Sketcher.Constraint("Vertical", 6),
    Sketcher.Constraint("Horizontal", 7),
    Sketcher.Constraint("Vertical", 3, 2, 4, 2),
    Sketcher.Constraint("Vertical", 2, 2, 5, 2),
    Sketcher.Constraint("Equal", 2, 4),
    Sketcher.Constraint("DistanceY", 0, 2, 0, 1, Q("1 in")),
    Sketcher.Constraint("DistanceY", 3, 2, 4, 2, Q("1 in")),
    Sketcher.Constraint("DistanceX", 1, 2, 1, 1, Q("0.25 in")),
    Sketcher.Constraint("DistanceX", -1, 1, 0, 2, Q("128.8987 mm")),
    Sketcher.Constraint("DistanceY", -1, 1, 0, 2, Q("39.4915 mm")),
])
pocket6 = body.newObject("PartDesign::Pocket", "Pocket005")
pocket6.Profile = sketch18
pocket6.Length = Q("0.25 in")
pocket6.Reversed = True

# Sketch on XY plane
sketch19 = body.newObject("Sketcher::SketchObject", "Sketch018")
sketch19.AttachmentSupport = (doc.getObject("XY_Plane"), [""])
sketch19.MapMode = "FlatFace"
add_polygon(sketch19, [(122.5, 115.7), (122.5, 90.3), (128.9, 90.3), (128.9, 64.9), (122.5, 64.9), (122.5, 39.5), (81.9, 39.5), (81.9, 38.8), (56.5, 38.8), (56.5, 39.5), (-203.8, 39.5), (-203.8, 64.9), (-210.2, 64.9), (-210.2, 90.3), (-203.8, 90.3), (-203.8, 115.7), (-172.1, 115.7), (-172.1, 64.9), (90.8, 64.9), (90.8, 115.7)])  # lines 0-19
sketch19.addGeometry(Part.Circle(Vector(109.8, 77.6, 0), Vector(0, 0, 1), 2), False)  # 20
sketch19.addGeometry(Part.Circle(Vector(-191.1, 83.9, 0), Vector(0, 0, 1), 2), False)  # 21
sketch19.addConstraint([
    Sketcher.Constraint("Vertical", 0),
    Sketcher.Constraint("Horizontal", 1),
    Sketcher.Constraint("Vertical", 2),
    Sketcher.Constraint("Horizontal", 3),
    Sketcher.Constraint("Vertical", 4),
    Sketcher.Constraint("Horizontal", 5),
    Sketcher.Constraint("Vertical", 6),
    Sketcher.Constraint("Horizontal", 7),
    Sketcher.Constraint("Vertical", 8),
    Sketcher.Constraint("Horizontal", 9),
    Sketcher.Constraint("Vertical", 10),
    Sketcher.Constraint("Horizontal", 11),
    Sketcher.Constraint("Vertical", 12),
    Sketcher.Constraint("Horizontal", 13),
    Sketcher.Constraint("Vertical", 14),
    Sketcher.Constraint("Horizontal", 15),
    Sketcher.Constraint("Vertical", 16),
    Sketcher.Constraint("Horizontal", 17),
    Sketcher.Constraint("Vertical", 18),
    Sketcher.Constraint("Horizontal", 19),
    Sketcher.Constraint("Equal", 20, 21),
    Sketcher.Constraint("Horizontal", 5, 2, 8, 2),
    Sketcher.Constraint("Horizontal", 3, 2, 10, 2),
    Sketcher.Constraint("Horizontal", 1, 2, 12, 2),
    Sketcher.Constraint("Horizontal", 11, 2, 16, 2),
    Sketcher.Constraint("Horizontal", 15, 2, 18, 2),
    Sketcher.Constraint("Vertical", 0, 2, 3, 2),
    Sketcher.Constraint("Vertical", 10, 2, 13, 2),
    Sketcher.Constraint("Equal", 3, 11),
    Sketcher.Constraint("Equal", 15, 19),
    Sketcher.Constraint("Equal", 7, 0),
    Sketcher.Constraint("Equal", 0, 2),
    Sketcher.Constraint("Equal", 2, 4),
    Sketcher.Constraint("DistanceX", 7, 2, 7, 1, Q("1 in")),
    Sketcher.Constraint("Diameter", 20, Q("0.156 in")),
    Sketcher.Constraint("DistanceX", 5, 2, 5, 1, Q("1.6 in")),
    Sketcher.Constraint("DistanceX", 1, 1, 1, 2, Q("0.25 in")),
    Sketcher.Constraint("DistanceX", 9, 2, 9, 1, Q("10.25 in")),
    Sketcher.Constraint("DistanceX", 15, 1, 15, 2, Q("1.25 in")),
    Sketcher.Constraint("DistanceX", 20, 3, 0, 2, Q("0.5 in")),
    Sketcher.Constraint("DistanceY", 20, 3, 0, 2, Q("0.5 in")),
    Sketcher.Constraint("DistanceX", 21, 3, 1, 2, Q("12.6 in")),
    Sketcher.Constraint("DistanceY", 20, 3, 21, 3, Q("0.25 in")),
    Sketcher.Constraint("DistanceY", 6, 2, 6, 1, Q("0.0268 in")),
    Sketcher.Constraint("DistanceX", -1, 1, 20, 3, Q("109.8487 mm")),
    Sketcher.Constraint("DistanceY", -1, 1, 20, 3, Q("77.5915 mm")),
])
pocket7 = body.newObject("PartDesign::Pocket", "Pocket006")
pocket7.Profile = sketch19
pocket7.Length = Q("1 in")
pocket7.Reversed = True

# Sketch on XY plane
sketch20 = body.newObject("Sketcher::SketchObject", "Sketch019")
sketch20.AttachmentSupport = (doc.getObject("XY_Plane"), [""])
sketch20.MapMode = "FlatFace"
add_polygon(sketch20, [(-41, 27), (-41, 20), (-204, 20), (-204, 39), (129, 39), (129, 27)])  # lines 0-5
add_polygon(sketch20, [(-134, 33), (-134, 27), (-109, 27), (-109, 33)])  # lines 6-9
sketch20.addConstraint([
    Sketcher.Constraint("Vertical", 0),
    Sketcher.Constraint("Horizontal", 1),
    Sketcher.Constraint("Vertical", 2),
    Sketcher.Constraint("Horizontal", 3),
    Sketcher.Constraint("Vertical", 4),
    Sketcher.Constraint("Horizontal", 5),
    Sketcher.Constraint("Vertical", 6),
    Sketcher.Constraint("Horizontal", 7),
    Sketcher.Constraint("Vertical", 8),
    Sketcher.Constraint("Horizontal", 9),
    Sketcher.Constraint("Horizontal", 5, 2, 6, 2),
    Sketcher.Constraint("Equal", 0, 6),
    Sketcher.Constraint("DistanceX", 7, 1, 7, 2, Q("1 in")),
    Sketcher.Constraint("DistanceX", 1, 2, 1, 1, Q("6.4 in")),
    Sketcher.Constraint("DistanceX", 3, 1, 3, 2, Q("13.1 in")),
    Sketcher.Constraint("DistanceY", 4, 2, 4, 1, Q("0.5 in")),
    Sketcher.Constraint("DistanceY", 0, 2, 0, 1, Q("0.25 in")),
    Sketcher.Constraint("DistanceX", 1, 2, 6, 2, Q("2.75 in")),
    Sketcher.Constraint("DistanceX", 0, 2, -1, 1, Q("41.2813 mm")),
    Sketcher.Constraint("DistanceY", -1, 1, 0, 2, Q("20.4415 mm")),
])
pocket8 = body.newObject("PartDesign::Pocket", "Pocket007")
pocket8.Profile = sketch20
pocket8.Length = Q("1 in")
pocket8.Reversed = True

# Sketch on XY plane
sketch21 = body.newObject("Sketcher::SketchObject", "Sketch020")
sketch21.AttachmentSupport = (doc.getObject("XY_Plane"), [""])
sketch21.MapMode = "FlatFace"
sketch21.AttachmentOffset = App.Placement(Vector(0, 0, 0.25 * 25.4), App.Rotation())
add_polygon(sketch21, [(128.9, -157.4), (128.9, 26.8), (-22.2, 26.8), (-22.2, 20.4), (109.8, 20.4), (109.8, -138.3), (-22.2, -138.3), (-22.2, -144.7), (-41.3, -144.7), (-41.3, -157.4)])  # lines 0-9
sketch21.addGeometry(Part.Circle(Vector(122.5, -138.3, 0), Vector(0, 0, 1), 2), False)  # 10
sketch21.addGeometry(Part.Circle(Vector(122.5, 20.4, 0), Vector(0, 0, 1), 2), False)  # 11
sketch21.addConstraint([
    Sketcher.Constraint("Vertical", 0),
    Sketcher.Constraint("Horizontal", 1),
    Sketcher.Constraint("Vertical", 2),
    Sketcher.Constraint("Horizontal", 3),
    Sketcher.Constraint("Vertical", 4),
    Sketcher.Constraint("Horizontal", 5),
    Sketcher.Constraint("Vertical", 6),
    Sketcher.Constraint("Horizontal", 7),
    Sketcher.Constraint("Vertical", 8),
    Sketcher.Constraint("Horizontal", 9),
    Sketcher.Constraint("Equal", 10, 11),
    Sketcher.Constraint("Horizontal", 11, 3, 2, 2),
    Sketcher.Constraint("Horizontal", 10, 3, 4, 2),
    Sketcher.Constraint("Vertical", 10, 3, 11, 3),
    Sketcher.Constraint("Vertical", 2, 2, 5, 2),
    Sketcher.Constraint("Equal", 2, 6),
    Sketcher.Constraint("Diameter", 10, Q("0.156 in")),
    Sketcher.Constraint("DistanceX", 3, 1, 3, 2, Q("5.2 in")),
    Sketcher.Constraint("DistanceX", 9, 1, 9, 2, Q("6.7 in")),
    Sketcher.Constraint("DistanceY", 8, 2, 8, 1, Q("0.5 in")),
    Sketcher.Constraint("DistanceX", 1, 2, 1, 1, Q("5.95 in")),
    Sketcher.Constraint("DistanceY", 0, 1, 0, 2, Q("7.25 in")),
    Sketcher.Constraint("DistanceY", 2, 2, 2, 1, Q("0.25 in")),
    Sketcher.Constraint("DistanceX", 1, 2, 11, 3, Q("5.7 in")),
    Sketcher.Constraint("DistanceX", -1, 1, 10, 3, Q("122.5487 mm")),
    Sketcher.Constraint("DistanceY", 10, 3, -1, 1, Q("138.3085 mm")),
])
pocket9 = body.newObject("PartDesign::Pocket", "Pocket008")
pocket9.Profile = sketch21
pocket9.Length = Q("1 in")

# Sketch on XY plane
sketch22 = body.newObject("Sketcher::SketchObject", "Sketch021")
sketch22.AttachmentSupport = (doc.getObject("XY_Plane"), [""])
sketch22.MapMode = "FlatFace"
sketch22.AttachmentOffset = App.Placement(Vector(0, 0, 0.25 * 25.4), App.Rotation())
add_polygon(sketch22, [(-41.3, -144.7), (-22.2, -144.7), (-22.2, 26.8), (-41.3, 26.8)])  # lines 0-3
sketch22.addGeometry(Part.Circle(Vector(-34.9, -138.3, 0), Vector(0, 0, 1), 2), False)  # 4
sketch22.addGeometry(Part.Circle(Vector(-34.9, 20.4, 0), Vector(0, 0, 1), 2), False)  # 5
sketch22.addConstraint([
    Sketcher.Constraint("Horizontal", 0),
    Sketcher.Constraint("Vertical", 1),
    Sketcher.Constraint("Horizontal", 2),
    Sketcher.Constraint("Vertical", 3),
    Sketcher.Constraint("Equal", 4, 5),
    Sketcher.Constraint("Vertical", 4, 3, 5, 3),
    Sketcher.Constraint("Diameter", 4, Q("0.156 in")),
    Sketcher.Constraint("DistanceX", 0, 1, 0, 2, Q("0.75 in")),
    Sketcher.Constraint("DistanceY", 1, 1, 1, 2, Q("6.75 in")),
    Sketcher.Constraint("DistanceX", 4, 3, 0, 2, Q("0.5 in")),
    Sketcher.Constraint("DistanceY", 0, 2, 5, 3, Q("6.5 in")),
    Sketcher.Constraint("DistanceY", 4, 3, 1, 2, Q("6.5 in")),
    Sketcher.Constraint("DistanceX", 4, 3, -1, 1, Q("34.9313 mm")),
    Sketcher.Constraint("DistanceY", 4, 3, -1, 1, Q("138.3085 mm")),
])
pad13 = body.newObject("PartDesign::Pad", "Pad012")
pad13.Profile = sketch22
pad13.Length = Q("0.5 in")
pad13.Reversed = True

# Sketch on XY plane
sketch23 = body.newObject("Sketcher::SketchObject", "Sketch022")
sketch23.AttachmentSupport = (doc.getObject("XY_Plane"), [""])
sketch23.MapMode = "FlatFace"
sketch23.AttachmentOffset = App.Placement(Vector(0, 0, 0.25 * 25.4), App.Rotation())
sketch23.addGeometry([
    Part.Circle(Vector(-34.9, -138.3, 0), Vector(0, 0, 1), 2),
    Part.Circle(Vector(-34.9, 20.4, 0), Vector(0, 0, 1), 2),
], False)
sketch23.addConstraint([
    Sketcher.Constraint("Equal", 0, 1),
    Sketcher.Constraint("Vertical", 0, 3, 1, 3),
    Sketcher.Constraint("Diameter", 0, Q("0.156 in")),
    Sketcher.Constraint("DistanceY", 0, 3, 1, 3, Q("6.25 in")),
    Sketcher.Constraint("DistanceX", 0, 3, -1, 1, Q("34.9313 mm")),
    Sketcher.Constraint("DistanceY", 0, 3, -1, 1, Q("138.3085 mm")),
])
pad14 = body.newObject("PartDesign::Pad", "Pad013")
pad14.Profile = sketch23
pad14.Length = Q("0.5 in")
pad14.Reversed = True

# Sketch on XY plane
sketch24 = body.newObject("Sketcher::SketchObject", "Sketch023")
sketch24.AttachmentSupport = (doc.getObject("XY_Plane"), [""])
sketch24.MapMode = "FlatFace"
sketch24.AttachmentOffset = App.Placement(Vector(0, 0, 0.25 * 25.4), App.Rotation())
add_polygon(sketch24, [(-41, -145), (-35, -145), (-35, 27), (-41, 27)])  # lines 0-3
sketch24.addConstraint([
    Sketcher.Constraint("Horizontal", 0),
    Sketcher.Constraint("Vertical", 1),
    Sketcher.Constraint("Horizontal", 2),
    Sketcher.Constraint("Vertical", 3),
    Sketcher.Constraint("DistanceX", 0, 1, 0, 2, Q("0.25 in")),
    Sketcher.Constraint("DistanceY", 1, 1, 1, 2, Q("6.75 in")),
    Sketcher.Constraint("DistanceX", 0, 2, -1, 1, Q("34.9313 mm")),
    Sketcher.Constraint("DistanceY", 0, 2, -1, 1, Q("144.6585 mm")),
])
pocket10 = body.newObject("PartDesign::Pocket", "Pocket009")
pocket10.Profile = sketch24
pocket10.Length = Q("0.5 in")

# Sketch on XZ plane
sketch25 = body.newObject("Sketcher::SketchObject", "Sketch024")
sketch25.AttachmentSupport = (doc.getObject("XZ_Plane"), [""])
sketch25.MapMode = "FlatFace"
sketch25.AttachmentOffset = App.Placement(Vector(0, 0, -26.7915), App.Rotation())
add_polygon(sketch25, [(-22, -6), (-35, -6), (-35, 6), (-22, 6)])  # lines 0-3
sketch25.addConstraint([
    Sketcher.Constraint("Horizontal", 0),
    Sketcher.Constraint("Vertical", 1),
    Sketcher.Constraint("Horizontal", 2),
    Sketcher.Constraint("Vertical", 3),
    Sketcher.Constraint("Equal", 2, 1),
    Sketcher.Constraint("DistanceX", 0, 2, 0, 1, Q("0.5 in")),
    Sketcher.Constraint("DistanceY", 0, 2, -1, 1, Q("0.25 in")),
    Sketcher.Constraint("DistanceX", 0, 2, -1, 1, Q("34.9313 mm")),
])
pad15 = body.newObject("PartDesign::Pad", "Pad014")
pad15.Profile = sketch25
pad15.Length = Q("0.5 in")
pad15.Reversed = True

# Sketch on XZ plane
sketch26 = body.newObject("Sketcher::SketchObject", "Sketch025")
sketch26.AttachmentSupport = (doc.getObject("XZ_Plane"), [""])
sketch26.MapMode = "FlatFace"
sketch26.AttachmentOffset = App.Placement(Vector(0, 0, 144.6585), App.Rotation())
add_polygon(sketch26, [(-22, 6), (-35, 6), (-35, -6), (-22, -6)])  # lines 0-3
sketch26.addConstraint([
    Sketcher.Constraint("Horizontal", 0),
    Sketcher.Constraint("Vertical", 1),
    Sketcher.Constraint("Horizontal", 2),
    Sketcher.Constraint("Vertical", 3),
    Sketcher.Constraint("Equal", 2, 1),
    Sketcher.Constraint("DistanceX", 0, 2, 0, 1, Q("0.5 in")),
    Sketcher.Constraint("DistanceY", -1, 1, 0, 2, Q("0.25 in")),
    Sketcher.Constraint("DistanceX", 0, 2, -1, 1, Q("34.9313 mm")),
])
pad16 = body.newObject("PartDesign::Pad", "Pad015")
pad16.Profile = sketch26
pad16.Length = Q("0.25 in")

# Sketch on YZ plane
sketch27 = body.newObject("Sketcher::SketchObject", "Sketch026")
sketch27.AttachmentSupport = (doc.getObject("YZ_Plane"), [""])
sketch27.MapMode = "FlatFace"
sketch27.AttachmentOffset = App.Placement(Vector(0, 0, -22.2313), App.Rotation())
add_polygon(sketch27, [(39, 6), (-151, 6), (-151, -6), (39, -6)])  # lines 0-3
sketch27.addConstraint([
    Sketcher.Constraint("Horizontal", 0),
    Sketcher.Constraint("Vertical", 1),
    Sketcher.Constraint("Horizontal", 2),
    Sketcher.Constraint("Vertical", 3),
    Sketcher.Constraint("DistanceX", 0, 2, 0, 1, Q("7.5 in")),
    Sketcher.Constraint("DistanceY", 1, 2, 1, 1, Q("0.5 in")),
    Sketcher.Constraint("DistanceY", -1, 1, 0, 2, Q("0.25 in")),
    Sketcher.Constraint("DistanceX", 0, 2, -1, 1, Q("151.0085 mm")),
])
pad17 = body.newObject("PartDesign::Pad", "Pad016")
pad17.Profile = sketch27
pad17.Length = Q("0.25 in")

# Sketch on XY plane
sketch28 = body.newObject("Sketcher::SketchObject", "Sketch027")
sketch28.AttachmentSupport = (doc.getObject("XY_Plane"), [""])
sketch28.MapMode = "FlatFace"
sketch28.AttachmentOffset = App.Placement(Vector(0, 0, -0.25 * 25.4), App.Rotation())
add_polygon(sketch28, [(-16, -151), (-35, -151), (-35, -145), (-16, -145)])  # lines 0-3
sketch28.addConstraint([
    Sketcher.Constraint("Horizontal", 0),
    Sketcher.Constraint("Vertical", 1),
    Sketcher.Constraint("Horizontal", 2),
    Sketcher.Constraint("Vertical", 3),
    Sketcher.Constraint("DistanceY", 1, 1, 1, 2, Q("0.25 in")),
    Sketcher.Constraint("DistanceX", 0, 2, 0, 1, Q("0.75 in")),
    Sketcher.Constraint("DistanceX", 0, 2, -1, 1, Q("34.9313 mm")),
    Sketcher.Constraint("DistanceY", 0, 2, -1, 1, Q("151.0085 mm")),
])
pocket11 = body.newObject("PartDesign::Pocket", "Pocket010")
pocket11.Profile = sketch28
pocket11.Length = Q("0.5 in")
pocket11.Reversed = True

# Sketch on YZ plane
sketch29 = body.newObject("Sketcher::SketchObject", "Sketch028")
sketch29.AttachmentSupport = (doc.getObject("YZ_Plane"), [""])
sketch29.MapMode = "FlatFace"
sketch29.AttachmentOffset = App.Placement(Vector(0, 0, -15.8813), App.Rotation())
add_polygon(sketch29, [(39, 6), (-145, 6), (-145, -6), (39, -6)])  # lines 0-3
sketch29.addConstraint([
    Sketcher.Constraint("Horizontal", 0),
    Sketcher.Constraint("Vertical", 1),
    Sketcher.Constraint("Horizontal", 2),
    Sketcher.Constraint("Vertical", 3),
    Sketcher.Constraint("DistanceY", 1, 2, 1, 1, Q("0.5 in")),
    Sketcher.Constraint("DistanceX", 0, 2, 0, 1, Q("7.25 in")),
    Sketcher.Constraint("DistanceY", -1, 1, 0, 2, Q("0.25 in")),
    Sketcher.Constraint("DistanceX", 0, 2, -1, 1, Q("144.6585 mm")),
])
pad18 = body.newObject("PartDesign::Pad", "Pad017")
pad18.Profile = sketch29
pad18.Length = Q("0.25 in")

# Sketch on XZ plane
sketch30 = body.newObject("Sketcher::SketchObject", "Sketch029")
sketch30.AttachmentSupport = (doc.getObject("XZ_Plane"), [""])
sketch30.MapMode = "FlatFace"
sketch30.AttachmentOffset = App.Placement(Vector(0, 0, -39.4915), App.Rotation())
add_polygon(sketch30, [(-10, -6), (-35, -6), (-35, 6), (-10, 6)])  # lines 0-3
sketch30.addConstraint([
    Sketcher.Constraint("Horizontal", 0),
    Sketcher.Constraint("Vertical", 1),
    Sketcher.Constraint("Horizontal", 2),
    Sketcher.Constraint("Vertical", 3),
    Sketcher.Constraint("DistanceX", 0, 2, 0, 1, Q("1 in")),
    Sketcher.Constraint("DistanceY", 1, 1, 1, 2, Q("0.5 in")),
    Sketcher.Constraint("DistanceY", 0, 2, -1, 1, Q("0.25 in")),
    Sketcher.Constraint("DistanceX", 0, 2, -1, 1, Q("34.9313 mm")),
])
pad19 = body.newObject("PartDesign::Pad", "Pad018")
pad19.Profile = sketch30
pad19.Length = Q("0.5 in")
pad19.Reversed = True

# Sketch on XZ plane
sketch31 = body.newObject("Sketcher::SketchObject", "Sketch030")
sketch31.AttachmentSupport = (doc.getObject("XZ_Plane"), [""])
sketch31.MapMode = "FlatFace"
sketch31.AttachmentOffset = App.Placement(Vector(0, 0, -52.1915), App.Rotation())
add_polygon(sketch31, [(-10, 6), (-10, -6), (-35, -6), (-35, 6)])  # lines 0-3
sketch31.addConstraint([
    Sketcher.Constraint("Vertical", 0),
    Sketcher.Constraint("Horizontal", 1),
    Sketcher.Constraint("Vertical", 2),
    Sketcher.Constraint("Horizontal", 3),
    Sketcher.Constraint("DistanceX", 1, 2, 1, 1, Q("1 in")),
    Sketcher.Constraint("DistanceY", 0, 2, 0, 1, Q("0.5 in")),
    Sketcher.Constraint("DistanceY", 0, 2, -1, 1, Q("0.25 in")),
    Sketcher.Constraint("DistanceX", 0, 2, -1, 1, Q("9.5313 mm")),
])
pocket12 = body.newObject("PartDesign::Pocket", "Pocket011")
pocket12.Profile = sketch31
pocket12.Length = Q("0.5 in")
pocket12.Reversed = True

doc.recompute()
